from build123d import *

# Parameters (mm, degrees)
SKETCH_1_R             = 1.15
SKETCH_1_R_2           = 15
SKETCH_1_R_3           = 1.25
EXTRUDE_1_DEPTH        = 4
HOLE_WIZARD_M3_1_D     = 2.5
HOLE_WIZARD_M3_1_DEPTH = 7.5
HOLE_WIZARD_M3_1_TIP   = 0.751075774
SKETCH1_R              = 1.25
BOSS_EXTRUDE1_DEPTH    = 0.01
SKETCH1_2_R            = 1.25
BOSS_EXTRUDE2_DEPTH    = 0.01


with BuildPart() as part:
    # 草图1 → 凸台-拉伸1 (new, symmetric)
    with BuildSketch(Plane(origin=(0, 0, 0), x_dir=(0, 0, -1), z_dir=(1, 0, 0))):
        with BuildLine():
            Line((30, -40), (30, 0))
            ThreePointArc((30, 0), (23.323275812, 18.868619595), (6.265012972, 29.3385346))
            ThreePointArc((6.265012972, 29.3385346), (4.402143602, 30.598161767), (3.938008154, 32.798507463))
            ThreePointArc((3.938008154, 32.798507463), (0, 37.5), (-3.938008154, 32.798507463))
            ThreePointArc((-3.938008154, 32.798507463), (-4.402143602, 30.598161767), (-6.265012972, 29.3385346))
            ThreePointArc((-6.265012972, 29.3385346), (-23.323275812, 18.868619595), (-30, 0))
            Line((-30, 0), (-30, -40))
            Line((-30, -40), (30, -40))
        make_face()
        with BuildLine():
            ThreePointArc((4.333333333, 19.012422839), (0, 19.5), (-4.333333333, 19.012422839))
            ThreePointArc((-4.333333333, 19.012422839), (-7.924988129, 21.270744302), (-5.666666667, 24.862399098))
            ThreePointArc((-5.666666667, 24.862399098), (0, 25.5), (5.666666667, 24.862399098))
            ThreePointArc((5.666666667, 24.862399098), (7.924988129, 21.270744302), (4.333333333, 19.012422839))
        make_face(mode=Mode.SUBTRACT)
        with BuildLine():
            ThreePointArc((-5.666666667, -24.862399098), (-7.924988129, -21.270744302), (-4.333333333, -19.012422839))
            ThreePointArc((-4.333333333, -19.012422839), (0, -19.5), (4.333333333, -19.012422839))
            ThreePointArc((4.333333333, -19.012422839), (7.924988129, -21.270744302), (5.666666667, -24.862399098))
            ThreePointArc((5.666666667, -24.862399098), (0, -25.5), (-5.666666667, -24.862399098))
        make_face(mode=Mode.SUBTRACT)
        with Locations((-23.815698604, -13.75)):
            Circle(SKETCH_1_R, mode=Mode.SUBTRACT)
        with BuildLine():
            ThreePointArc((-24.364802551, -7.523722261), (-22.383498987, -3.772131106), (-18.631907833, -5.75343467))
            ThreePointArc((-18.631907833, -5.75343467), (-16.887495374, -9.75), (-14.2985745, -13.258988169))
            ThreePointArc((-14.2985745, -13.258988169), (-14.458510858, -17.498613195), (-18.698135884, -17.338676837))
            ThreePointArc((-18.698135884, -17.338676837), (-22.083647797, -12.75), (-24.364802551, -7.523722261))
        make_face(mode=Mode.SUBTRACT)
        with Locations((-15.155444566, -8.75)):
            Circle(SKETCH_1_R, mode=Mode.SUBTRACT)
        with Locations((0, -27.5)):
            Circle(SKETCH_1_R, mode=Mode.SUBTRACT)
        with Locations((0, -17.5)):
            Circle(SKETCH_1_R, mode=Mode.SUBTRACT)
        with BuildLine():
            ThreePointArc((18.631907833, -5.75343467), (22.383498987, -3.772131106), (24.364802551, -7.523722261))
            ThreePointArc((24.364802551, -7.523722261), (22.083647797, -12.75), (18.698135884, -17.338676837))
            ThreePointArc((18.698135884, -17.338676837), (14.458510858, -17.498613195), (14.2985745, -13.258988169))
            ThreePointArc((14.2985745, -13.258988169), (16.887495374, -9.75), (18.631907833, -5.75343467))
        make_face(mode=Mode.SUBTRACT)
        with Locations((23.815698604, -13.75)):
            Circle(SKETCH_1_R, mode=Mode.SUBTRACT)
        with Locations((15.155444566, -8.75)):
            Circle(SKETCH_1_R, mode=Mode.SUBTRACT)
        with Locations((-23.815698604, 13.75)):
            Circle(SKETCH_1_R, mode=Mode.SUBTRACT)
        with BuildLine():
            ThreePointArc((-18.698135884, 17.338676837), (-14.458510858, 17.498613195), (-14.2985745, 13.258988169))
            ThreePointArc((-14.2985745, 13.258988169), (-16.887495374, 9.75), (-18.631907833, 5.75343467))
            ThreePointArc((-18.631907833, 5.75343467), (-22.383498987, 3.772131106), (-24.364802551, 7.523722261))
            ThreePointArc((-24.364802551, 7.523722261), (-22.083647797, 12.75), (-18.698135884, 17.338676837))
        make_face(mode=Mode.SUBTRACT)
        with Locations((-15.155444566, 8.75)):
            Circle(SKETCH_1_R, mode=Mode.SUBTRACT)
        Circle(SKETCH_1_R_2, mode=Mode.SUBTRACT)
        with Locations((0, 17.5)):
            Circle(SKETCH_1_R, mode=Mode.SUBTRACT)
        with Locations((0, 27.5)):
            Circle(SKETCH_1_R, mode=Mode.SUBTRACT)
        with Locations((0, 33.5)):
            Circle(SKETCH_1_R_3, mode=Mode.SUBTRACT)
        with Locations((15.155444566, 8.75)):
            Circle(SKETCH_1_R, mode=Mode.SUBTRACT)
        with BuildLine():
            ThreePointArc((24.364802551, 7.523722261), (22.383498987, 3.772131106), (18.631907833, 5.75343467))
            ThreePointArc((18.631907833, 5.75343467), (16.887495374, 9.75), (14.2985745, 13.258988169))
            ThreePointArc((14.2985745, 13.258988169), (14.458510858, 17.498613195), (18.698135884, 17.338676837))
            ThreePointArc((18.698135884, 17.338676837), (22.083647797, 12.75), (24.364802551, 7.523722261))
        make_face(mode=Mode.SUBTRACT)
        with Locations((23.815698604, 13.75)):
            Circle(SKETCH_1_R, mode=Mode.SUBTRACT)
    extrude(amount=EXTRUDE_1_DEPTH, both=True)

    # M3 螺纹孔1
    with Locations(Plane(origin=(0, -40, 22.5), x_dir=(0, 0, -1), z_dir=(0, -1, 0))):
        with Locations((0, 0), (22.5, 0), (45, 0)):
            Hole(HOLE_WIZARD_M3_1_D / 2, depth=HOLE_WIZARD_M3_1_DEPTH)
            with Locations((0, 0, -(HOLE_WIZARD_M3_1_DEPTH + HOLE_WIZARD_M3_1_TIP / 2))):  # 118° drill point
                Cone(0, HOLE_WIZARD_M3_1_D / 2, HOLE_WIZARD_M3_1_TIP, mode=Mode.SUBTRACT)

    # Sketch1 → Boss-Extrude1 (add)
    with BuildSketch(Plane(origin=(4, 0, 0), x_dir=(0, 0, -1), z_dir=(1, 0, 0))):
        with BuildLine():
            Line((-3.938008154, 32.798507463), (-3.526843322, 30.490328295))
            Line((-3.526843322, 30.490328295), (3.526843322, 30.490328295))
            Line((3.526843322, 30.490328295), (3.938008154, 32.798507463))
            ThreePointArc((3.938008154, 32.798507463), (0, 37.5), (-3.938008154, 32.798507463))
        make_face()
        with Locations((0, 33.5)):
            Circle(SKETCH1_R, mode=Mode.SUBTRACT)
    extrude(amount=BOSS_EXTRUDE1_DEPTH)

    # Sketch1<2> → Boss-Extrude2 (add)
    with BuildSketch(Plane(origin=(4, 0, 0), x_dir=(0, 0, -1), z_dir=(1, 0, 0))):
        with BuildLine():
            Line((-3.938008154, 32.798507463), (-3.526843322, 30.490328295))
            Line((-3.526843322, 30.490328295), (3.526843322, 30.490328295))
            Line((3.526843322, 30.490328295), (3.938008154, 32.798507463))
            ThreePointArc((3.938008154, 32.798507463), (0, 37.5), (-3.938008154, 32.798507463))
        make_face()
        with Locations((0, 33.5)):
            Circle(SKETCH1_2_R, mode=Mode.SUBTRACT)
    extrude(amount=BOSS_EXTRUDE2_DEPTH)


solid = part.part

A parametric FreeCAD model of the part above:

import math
import FreeCAD as App
import Part
import Sketcher

doc = App.newDocument("Part")
body = doc.addObject("PartDesign::Body", "Body")

sketch1 = body.newObject("Sketcher::SketchObject", "Sketch")
sketch1.AttachmentSupport = (doc.getObject("YZ_Plane"), [""])
sketch1.MapMode = "FlatFace"
sketch1.addGeometry(Part.LineSegment(App.Vector(-40, -30, 0), App.Vector(0, -30, 0)), False)
sketch1.addGeometry(Part.ArcOfCircle(Part.Circle(App.Vector(0, 0, 0), App.Vector(0, 0, 1), 30), math.radians(-90), math.radians(-12)), False)
sketch1.addGeometry(Part.ArcOfCircle(Part.Circle(App.Vector(32.3, -6.9, 0), App.Vector(0, 0, 1), 3), math.radians(80), math.radians(168)), False)
sketch1.addGeometry(Part.ArcOfCircle(Part.Circle(App.Vector(33.5, 0, 0), App.Vector(0, 0, 1), 4), math.radians(-100), math.radians(100)), False)
sketch1.addGeometry(Part.ArcOfCircle(Part.Circle(App.Vector(32.3, 6.9, 0), App.Vector(0, 0, 1), 3), math.radians(-168), math.radians(-80)), False)
sketch1.addGeometry(Part.ArcOfCircle(Part.Circle(App.Vector(0, 0, 0), App.Vector(0, 0, 1), 30), math.radians(12), math.radians(90)), False)
sketch1.addGeometry(Part.LineSegment(App.Vector(0, 30, 0), App.Vector(-40, 30, 0)), False)
sketch1.addGeometry(Part.LineSegment(App.Vector(-40, 30, 0), App.Vector(-40, -30, 0)), False)
sketch1.addGeometry(Part.Circle(App.Vector(-13.8, 23.8, 0), App.Vector(0, 0, 1), 1.1), False)
sketch1.addGeometry(Part.ArcOfCircle(Part.Circle(App.Vector(0, 0, 0), App.Vector(0, 0, 1), 25.5), math.radians(107), math.radians(133)), False)
sketch1.addGeometry(Part.ArcOfCircle(Part.Circle(App.Vector(-6.6, 21.5, 0), App.Vector(0, 0, 1), 3), math.radians(-73), math.radians(107)), False)
sketch1.addGeometry(Part.ArcOfCircle(Part.Circle(App.Vector(0, 0, 0), App.Vector(0, 0, 1), 19.5), math.radians(107), math.radians(133)), False)
sketch1.addGeometry(Part.ArcOfCircle(Part.Circle(App.Vector(-15.3, 16.5, 0), App.Vector(0, 0, 1), 3), math.radians(133), math.radians(313)), False)
sketch1.addGeometry(Part.Circle(App.Vector(-8.8, 15.2, 0), App.Vector(0, 0, 1), 1.1), False)
sketch1.addGeometry(Part.Circle(App.Vector(0, 0, 0), App.Vector(0, 0, 1), 15), False)
sketch1.addGeometry(Part.Circle(App.Vector(-27.5, 0, 0), App.Vector(0, 0, 1), 1.1), False)
sketch1.addGeometry(Part.ArcOfCircle(Part.Circle(App.Vector(0, 0, 0), App.Vector(0, 0, 1), 25.5), math.radians(167), math.radians(193)), False)
sketch1.addGeometry(Part.ArcOfCircle(Part.Circle(App.Vector(-21.9, 5, 0), App.Vector(0, 0, 1), 3), math.radians(-13), math.radians(167)), False)
sketch1.addGeometry(Part.ArcOfCircle(Part.Circle(App.Vector(0, 0, 0), App.Vector(0, 0, 1), 19.5), math.radians(167), math.radians(193)), False)
sketch1.addGeometry(Part.ArcOfCircle(Part.Circle(App.Vector(-21.9, -5, 0), App.Vector(0, 0, 1), 3), math.radians(-167), math.radians(13)), False)
sketch1.addGeometry(Part.Circle(App.Vector(-17.5, 0, 0), App.Vector(0, 0, 1), 1.1), False)
sketch1.addGeometry(Part.Circle(App.Vector(-13.8, -23.8, 0), App.Vector(0, 0, 1), 1.1), False)
sketch1.addGeometry(Part.Circle(App.Vector(-8.8, -15.2, 0), App.Vector(0, 0, 1), 1.1), False)
sketch1.addGeometry(Part.ArcOfCircle(Part.Circle(App.Vector(0, 0, 0), App.Vector(0, 0, 1), 19.5), math.radians(-133), math.radians(-107)), False)
sketch1.addGeometry(Part.ArcOfCircle(Part.Circle(App.Vector(-6.6, -21.5, 0), App.Vector(0, 0, 1), 3), math.radians(-107), math.radians(73)), False)
sketch1.addGeometry(Part.ArcOfCircle(Part.Circle(App.Vector(0, 0, 0), App.Vector(0, 0, 1), 25.5), math.radians(-133), math.radians(-107)), False)
sketch1.addGeometry(Part.ArcOfCircle(Part.Circle(App.Vector(-15.3, -16.5, 0), App.Vector(0, 0, 1), 3), math.radians(47), math.radians(227)), False)
sketch1.addGeometry(Part.ArcOfCircle(Part.Circle(App.Vector(0, 0, 0), App.Vector(0, 0, 1), 25.5), math.radians(47), math.radians(73)), False)
sketch1.addGeometry(Part.ArcOfCircle(Part.Circle(App.Vector(15.3, 16.5, 0), App.Vector(0, 0, 1), 3), math.radians(-133), math.radians(47)), False)
sketch1.addGeometry(Part.ArcOfCircle(Part.Circle(App.Vector(0, 0, 0), App.Vector(0, 0, 1), 19.5), math.radians(47), math.radians(73)), False)
sketch1.addGeometry(Part.ArcOfCircle(Part.Circle(App.Vector(6.6, 21.5, 0), App.Vector(0, 0, 1), 3), math.radians(73), math.radians(253)), False)
sketch1.addGeometry(Part.Circle(App.Vector(8.8, 15.2, 0), App.Vector(0, 0, 1), 1.1), False)
sketch1.addGeometry(Part.Circle(App.Vector(13.8, 23.8, 0), App.Vector(0, 0, 1), 1.1), False)
sketch1.addGeometry(Part.Circle(App.Vector(17.5, 0, 0), App.Vector(0, 0, 1), 1.1), False)
sketch1.addGeometry(Part.Circle(App.Vector(8.8, -15.2, 0), App.Vector(0, 0, 1), 1.1), False)
sketch1.addGeometry(Part.ArcOfCircle(Part.Circle(App.Vector(0, 0, 0), App.Vector(0, 0, 1), 25.5), math.radians(-73), math.radians(-47)), False)
sketch1.addGeometry(Part.ArcOfCircle(Part.Circle(App.Vector(6.6, -21.5, 0), App.Vector(0, 0, 1), 3), math.radians(107), math.radians(287)), False)
sketch1.addGeometry(Part.ArcOfCircle(Part.Circle(App.Vector(0, 0, 0), App.Vector(0, 0, 1), 19.5), math.radians(-73), math.radians(-47)), False)
sketch1.addGeometry(Part.ArcOfCircle(Part.Circle(App.Vector(15.3, -16.5, 0), App.Vector(0, 0, 1), 3), math.radians(-47), math.radians(133)), False)
sketch1.addGeometry(Part.Circle(App.Vector(13.8, -23.8, 0), App.Vector(0, 0, 1), 1.1), False)
sketch1.addGeometry(Part.ArcOfCircle(Part.Circle(App.Vector(21.9, -5, 0), App.Vector(0, 0, 1), 3), math.radians(167), math.radians(347)), False)
sketch1.addGeometry(Part.ArcOfCircle(Part.Circle(App.Vector(0, 0, 0), App.Vector(0, 0, 1), 19.5), math.radians(-13), math.radians(13)), False)
sketch1.addGeometry(Part.ArcOfCircle(Part.Circle(App.Vector(21.9, 5, 0), App.Vector(0, 0, 1), 3), math.radians(13), math.radians(193)), False)
sketch1.addGeometry(Part.ArcOfCircle(Part.Circle(App.Vector(0, 0, 0), App.Vector(0, 0, 1), 25.5), math.radians(-13), math.radians(13)), False)
sketch1.addGeometry(Part.Circle(App.Vector(27.5, 0, 0), App.Vector(0, 0, 1), 1.1), False)
sketch1.addGeometry(Part.Circle(App.Vector(33.5, 0, 0), App.Vector(0, 0, 1), 1.2), False)
sketch1.addConstraint(Sketcher.Constraint("Tangent", 0, 2, 1, 1))
sketch1.addConstraint(Sketcher.Constraint("Tangent", 1, 2, 2, 2))
sketch1.addConstraint(Sketcher.Constraint("Tangent", 2, 1, 3, 1))
sketch1.addConstraint(Sketcher.Constraint("Tangent", 3, 2, 4, 2))
sketch1.addConstraint(Sketcher.Constraint("Tangent", 4, 1, 5, 1))
sketch1.addConstraint(Sketcher.Constraint("Tangent", 5, 2, 6, 1))
sketch1.addConstraint(Sketcher.Constraint("Coincident", 6, 2, 7, 1))
sketch1.addConstraint(Sketcher.Constraint("Coincident", 7, 2, 0, 1))
sketch1.addConstraint(Sketcher.Constraint("Tangent", 9, 1, 10, 2))
sketch1.addConstraint(Sketcher.Constraint("Tangent", 10, 1, 11, 1))
sketch1.addConstraint(Sketcher.Constraint("Tangent", 11, 2, 12, 2))
sketch1.addConstraint(Sketcher.Constraint("Tangent", 12, 1, 9, 2))
sketch1.addConstraint(Sketcher.Constraint("Tangent", 16, 1, 17, 2))
sketch1.addConstraint(Sketcher.Constraint("Tangent", 17, 1, 18, 1))
sketch1.addConstraint(Sketcher.Constraint("Tangent", 18, 2, 19, 2))
sketch1.addConstraint(Sketcher.Constraint("Tangent", 19, 1, 16, 2))
sketch1.addConstraint(Sketcher.Constraint("Tangent", 23, 2, 24, 2))
sketch1.addConstraint(Sketcher.Constraint("Tangent", 24, 1, 25, 2))
sketch1.addConstraint(Sketcher.Constraint("Tangent", 25, 1, 26, 2))
sketch1.addConstraint(Sketcher.Constraint("Tangent", 26, 1, 23, 1))
sketch1.addConstraint(Sketcher.Constraint("Tangent", 27, 1, 28, 2))
sketch1.addConstraint(Sketcher.Constraint("Tangent", 28, 1, 29, 1))
sketch1.addConstraint(Sketcher.Constraint("Tangent", 29, 2, 30, 2))
sketch1.addConstraint(Sketcher.Constraint("Tangent", 30, 1, 27, 2))
sketch1.addConstraint(Sketcher.Constraint("Tangent", 35, 1, 36, 2))
sketch1.addConstraint(Sketcher.Constraint("Tangent", 36, 1, 37, 1))
sketch1.addConstraint(Sketcher.Constraint("Tangent", 37, 2, 38, 2))
sketch1.addConstraint(Sketcher.Constraint("Tangent", 38, 1, 35, 2))
sketch1.addConstraint(Sketcher.Constraint("Tangent", 40, 1, 41, 1))
sketch1.addConstraint(Sketcher.Constraint("Tangent", 41, 2, 42, 2))
sketch1.addConstraint(Sketcher.Constraint("Tangent", 42, 1, 43, 2))
sketch1.addConstraint(Sketcher.Constraint("Tangent", 43, 1, 40, 2))
sketch1.addConstraint(Sketcher.Constraint("Horizontal", 0))
sketch1.addConstraint(Sketcher.Constraint("Horizontal", 6))
sketch1.addConstraint(Sketcher.Constraint("Vertical", 7))
sketch1.addConstraint(Sketcher.Constraint("Coincident", 1, 3, -1, 1))
sketch1.addConstraint(Sketcher.Constraint("Coincident", 5, 3, -1, 1))
sketch1.addConstraint(Sketcher.Constraint("Coincident", 9, 3, -1, 1))
sketch1.addConstraint(Sketcher.Constraint("Coincident", 11, 3, -1, 1))
sketch1.addConstraint(Sketcher.Constraint("Coincident", 14, 3, -1, 1))
sketch1.addConstraint(Sketcher.Constraint("Coincident", 16, 3, -1, 1))
sketch1.addConstraint(Sketcher.Constraint("Coincident", 18, 3, -1, 1))
sketch1.addConstraint(Sketcher.Constraint("Coincident", 23, 3, -1, 1))
sketch1.addConstraint(Sketcher.Constraint("Coincident", 25, 3, -1, 1))
sketch1.addConstraint(Sketcher.Constraint("Coincident", 27, 3, -1, 1))
sketch1.addConstraint(Sketcher.Constraint("Coincident", 29, 3, -1, 1))
sketch1.addConstraint(Sketcher.Constraint("Coincident", 35, 3, -1, 1))
sketch1.addConstraint(Sketcher.Constraint("Coincident", 37, 3, -1, 1))
sketch1.addConstraint(Sketcher.Constraint("Coincident", 41, 3, -1, 1))
sketch1.addConstraint(Sketcher.Constraint("Coincident", 43, 3, -1, 1))
sketch1.addConstraint(Sketcher.Constraint("Coincident", 45, 3, 3, 3))
sketch1.addConstraint(Sketcher.Constraint("Equal", 2, 4))
sketch1.addConstraint(Sketcher.Constraint("Equal", 1, 5))
sketch1.addConstraint(Sketcher.Constraint("Equal", 4, 10))
sketch1.addConstraint(Sketcher.Constraint("Equal", 8, 13))
sketch1.addConstraint(Sketcher.Constraint("Equal", 13, 15))
sketch1.addConstraint(Sketcher.Constraint("Equal", 9, 16))
sketch1.addConstraint(Sketcher.Constraint("Equal", 12, 17))
sketch1.addConstraint(Sketcher.Constraint("Equal", 15, 20))
sketch1.addConstraint(Sketcher.Constraint("Equal", 20, 21))
sketch1.addConstraint(Sketcher.Constraint("Equal", 21, 22))
sketch1.addConstraint(Sketcher.Constraint("Equal", 18, 23))
sketch1.addConstraint(Sketcher.Constraint("Equal", 19, 24))
sketch1.addConstraint(Sketcher.Constraint("Equal", 25, 27))
sketch1.addConstraint(Sketcher.Constraint("Equal", 26, 28))
sketch1.addConstraint(Sketcher.Constraint("Equal", 22, 31))
sketch1.addConstraint(Sketcher.Constraint("Equal", 31, 32))
sketch1.addConstraint(Sketcher.Constraint("Equal", 32, 33))
sketch1.addConstraint(Sketcher.Constraint("Equal", 33, 34))
sketch1.addConstraint(Sketcher.Constraint("Equal", 27, 35))
sketch1.addConstraint(Sketcher.Constraint("Equal", 30, 36))
sketch1.addConstraint(Sketcher.Constraint("Equal", 34, 39))
sketch1.addConstraint(Sketcher.Constraint("Equal", 38, 40))
sketch1.addConstraint(Sketcher.Constraint("Equal", 37, 41))
sketch1.addConstraint(Sketcher.Constraint("Equal", 39, 44))
sketch1.addConstraint(Sketcher.Constraint("Symmetric", 22, 3, 31, 3, -1, 1))
sketch1.addConstraint(Sketcher.Constraint("Symmetric", 21, 3, 32, 3, -1, 1))
sketch1.addConstraint(Sketcher.Constraint("Symmetric", 20, 3, 33, 3, -1, 1))
sketch1.addConstraint(Sketcher.Constraint("Symmetric", 13, 3, 34, 3, -1, 1))
sketch1.addConstraint(Sketcher.Constraint("Symmetric", 8, 3, 39, 3, -1, 1))
sketch1.addConstraint(Sketcher.Constraint("Symmetric", 15, 3, 44, 3, -1, 1))
sketch1.addConstraint(Sketcher.Constraint("Symmetric", 13, 3, 31, 3, -2))
sketch1.addConstraint(Sketcher.Constraint("Symmetric", 8, 3, 32, 3, -2))
sketch1.addConstraint(Sketcher.Constraint("PointOnObject", 3, 3, -1))
sketch1.addConstraint(Sketcher.Constraint("PointOnObject", 15, 3, -1))
sketch1.addConstraint(Sketcher.Constraint("PointOnObject", 20, 3, -1))
sketch1.addConstraint(Sketcher.Constraint("Horizontal", 12, 3, 28, 3))
sketch1.addConstraint(Sketcher.Constraint("Horizontal", 10, 3, 30, 3))
sketch1.addConstraint(Sketcher.Constraint("Horizontal", 24, 3, 36, 3))
sketch1.addConstraint(Sketcher.Constraint("Horizontal", 26, 3, 38, 3))
sketch1.addConstraint(Sketcher.Constraint("Horizontal", 19, 3, 40, 3))
sketch1.addConstraint(Sketcher.Constraint("Horizontal", 17, 3, 42, 3))
sketch1.addConstraint(Sketcher.Constraint("Vertical", 17, 3, 19, 3))
sketch1.addConstraint(Sketcher.Constraint("Vertical", 10, 3, 24, 3))
sketch1.addConstraint(Sketcher.Constraint("Vertical", 12, 3, 26, 3))
sketch1.addConstraint(Sketcher.Constraint("Diameter", 14, 30.0))
sketch1.addConstraint(Sketcher.Constraint("Radius", 1, 30.0))
sketch1.addConstraint(Sketcher.Constraint("Radius", 2, 3.0))
sketch1.addConstraint(Sketcher.Constraint("Radius", 3, 4.0))
sketch1.addConstraint(Sketcher.Constraint("Diameter", 8, 2.3))
sketch1.addConstraint(Sketcher.Constraint("Diameter", 45, 2.5))
sketch1.addConstraint(Sketcher.Constraint("Radius", 9, 25.5))
sketch1.addConstraint(Sketcher.Constraint("DistanceX", 0, 1, 0, 2, 40.0))
sketch1.addConstraint(Sketcher.Constraint("DistanceY", -1, 1, 17, 3, 5.0))
sketch1.addConstraint(Sketcher.Constraint("DistanceX", -1, 1, 3, 3, 33.5))
sketch1.addConstraint(Sketcher.Constraint("DistanceX", 15, 3, -1, 1, 27.5))
sketch1.addConstraint(Sketcher.Constraint("DistanceX", 20, 3, -1, 1, 17.5))
sketch1.addConstraint(Sketcher.Constraint("DistanceX", 8, 3, -1, 1, 13.75))
sketch1.addConstraint(Sketcher.Constraint("DistanceX", 13, 3, -1, 1, 8.75))
sketch1.addConstraint(Sketcher.Constraint("DistanceY", -1, 1, 8, 3, 23.815699))
sketch1.addConstraint(Sketcher.Constraint("DistanceX", 10, 3, -1, 1, 6.638578))
sketch1.addConstraint(Sketcher.Constraint("DistanceX", 11, 2, -1, 1, 13.258988))
sketch1.addConstraint(Sketcher.Constraint("DistanceY", -1, 1, 13, 3, 15.155445))
pad1 = body.newObject("PartDesign::Pad", "Pad")
pad1.Profile = sketch1
pad1.Length = 8
pad1.Midplane = True

sketch2 = body.newObject("Sketcher::SketchObject", "Sketch001")
sketch2.AttachmentSupport = (doc.getObject("XZ_Plane"), [""])
sketch2.MapMode = "FlatFace"
sketch2.AttachmentOffset = App.Placement(App.Vector(0, 0, 40), App.Rotation())
sketch2.addGeometry(Part.Circle(App.Vector(0, 22.5, 0), App.Vector(0, 0, 1), 1.2), False)
sketch2.addGeometry(Part.Circle(App.Vector(0, 0, 0), App.Vector(0, 0, 1), 1.2), False)
sketch2.addGeometry(Part.Circle(App.Vector(0, -22.5, 0), App.Vector(0, 0, 1), 1.2), False)
sketch2.addConstraint(Sketcher.Constraint("Coincident", 1, 3, -1, 1))
sketch2.addConstraint(Sketcher.Constraint("Equal", 0, 1))
sketch2.addConstraint(Sketcher.Constraint("Equal", 1, 2))
sketch2.addConstraint(Sketcher.Constraint("Symmetric", 0, 3, 2, 3, -1, 1))
sketch2.addConstraint(Sketcher.Constraint("PointOnObject", 0, 3, -2))
sketch2.addConstraint(Sketcher.Constraint("Diameter", 0, 2.5))
sketch2.addConstraint(Sketcher.Constraint("DistanceY", 2, 3, 0, 3, 45.0))
doc.recompute()
hole = body.newObject("PartDesign::Hole", "Hole")
hole.Profile = sketch2
hole.ThreadType = "None"
hole.Diameter = 2.5
hole.DepthType = "Dimension"
hole.Depth = 7.5
hole.DrillPoint = "Angled"
hole.DrillPointAngle = 118

sketch3 = body.newObject("Sketcher::SketchObject", "Sketch002")
sketch3.AttachmentSupport = (doc.getObject("YZ_Plane"), [""])
sketch3.MapMode = "FlatFace"
sketch3.AttachmentOffset = App.Placement(App.Vector(0, 0, 4), App.Rotation())
sketch3.addGeometry(Part.LineSegment(App.Vector(32.8, 3.9, 0), App.Vector(30.5, 3.5, 0)), False)
sketch3.addGeometry(Part.LineSegment(App.Vector(30.5, 3.5, 0), App.Vector(30.5, -3.5, 0)), False)
sketch3.addGeometry(Part.LineSegment(App.Vector(30.5, -3.5, 0), App.Vector(32.8, -3.9, 0)), False)
sketch3.addGeometry(Part.ArcOfCircle(Part.Circle(App.Vector(33.5, 0, 0), App.Vector(0, 0, 1), 4), math.radians(-100), math.radians(100)), False)
sketch3.addGeometry(Part.Circle(App.Vector(33.5, 0, 0), App.Vector(0, 0, 1), 1.2), False)
sketch3.addConstraint(Sketcher.Constraint("Coincident", 0, 2, 1, 1))
sketch3.addConstraint(Sketcher.Constraint("Coincident", 1, 2, 2, 1))
sketch3.addConstraint(Sketcher.Constraint("Tangent", 2, 2, 3, 1))
sketch3.addConstraint(Sketcher.Constraint("Tangent", 3, 2, 0, 1))
sketch3.addConstraint(Sketcher.Constraint("Vertical", 1))
sketch3.addConstraint(Sketcher.Constraint("Coincident", 4, 3, 3, 3))
sketch3.addConstraint(Sketcher.Constraint("Symmetric", 2, 2, 3, 2, -1))
sketch3.addConstraint(Sketcher.Constraint("Radius", 3, 4.0))
sketch3.addConstraint(Sketcher.Constraint("Diameter", 4, 2.5))
sketch3.addConstraint(Sketcher.Constraint("DistanceX", -1, 1, 3, 3, 33.5))
sketch3.addConstraint(Sketcher.Constraint("DistanceY", 1, 2, 1, 1, 7.053687))
sketch3.addConstraint(Sketcher.Constraint("DistanceX", -1, 1, 0, 2, 30.490328))
pad2 = body.newObject("PartDesign::Pad", "Pad001")
pad2.Profile = sketch3
pad2.Length = 0.01

sketch4 = body.newObject("Sketcher::SketchObject", "Sketch003")
sketch4.AttachmentSupport = (doc.getObject("YZ_Plane"), [""])
sketch4.MapMode = "FlatFace"
sketch4.AttachmentOffset = App.Placement(App.Vector(0, 0, 4), App.Rotation())
sketch4.addGeometry(Part.LineSegment(App.Vector(32.8, 3.9, 0), App.Vector(30.5, 3.5, 0)), False)
sketch4.addGeometry(Part.LineSegment(App.Vector(30.5, 3.5, 0), App.Vector(30.5, -3.5, 0)), False)
sketch4.addGeometry(Part.LineSegment(App.Vector(30.5, -3.5, 0), App.Vector(32.8, -3.9, 0)), False)
sketch4.addGeometry(Part.ArcOfCircle(Part.Circle(App.Vector(33.5, 0, 0), App.Vector(0, 0, 1), 4), math.radians(-100), math.radians(100)), False)
sketch4.addGeometry(Part.Circle(App.Vector(33.5, 0, 0), App.Vector(0, 0, 1), 1.2), False)
sketch4.addConstraint(Sketcher.Constraint("Coincident", 0, 2, 1, 1))
sketch4.addConstraint(Sketcher.Constraint("Coincident", 1, 2, 2, 1))
sketch4.addConstraint(Sketcher.Constraint("Tangent", 2, 2, 3, 1))
sketch4.addConstraint(Sketcher.Constraint("Tangent", 3, 2, 0, 1))
sketch4.addConstraint(Sketcher.Constraint("Vertical", 1))
sketch4.addConstraint(Sketcher.Constraint("Coincident", 4, 3, 3, 3))
sketch4.addConstraint(Sketcher.Constraint("Symmetric", 2, 2, 3, 2, -1))
sketch4.addConstraint(Sketcher.Constraint("Radius", 3, 4.0))
sketch4.addConstraint(Sketcher.Constraint("Diameter", 4, 2.5))
sketch4.addConstraint(Sketcher.Constraint("DistanceX", -1, 1, 3, 3, 33.5))
sketch4.addConstraint(Sketcher.Constraint("DistanceY", 1, 2, 1, 1, 7.053687))
sketch4.addConstraint(Sketcher.Constraint("DistanceX", -1, 1, 0, 2, 30.490328))
pad3 = body.newObject("PartDesign::Pad", "Pad002")
pad3.Profile = sketch4
pad3.Length = 0.01

doc.recompute()
